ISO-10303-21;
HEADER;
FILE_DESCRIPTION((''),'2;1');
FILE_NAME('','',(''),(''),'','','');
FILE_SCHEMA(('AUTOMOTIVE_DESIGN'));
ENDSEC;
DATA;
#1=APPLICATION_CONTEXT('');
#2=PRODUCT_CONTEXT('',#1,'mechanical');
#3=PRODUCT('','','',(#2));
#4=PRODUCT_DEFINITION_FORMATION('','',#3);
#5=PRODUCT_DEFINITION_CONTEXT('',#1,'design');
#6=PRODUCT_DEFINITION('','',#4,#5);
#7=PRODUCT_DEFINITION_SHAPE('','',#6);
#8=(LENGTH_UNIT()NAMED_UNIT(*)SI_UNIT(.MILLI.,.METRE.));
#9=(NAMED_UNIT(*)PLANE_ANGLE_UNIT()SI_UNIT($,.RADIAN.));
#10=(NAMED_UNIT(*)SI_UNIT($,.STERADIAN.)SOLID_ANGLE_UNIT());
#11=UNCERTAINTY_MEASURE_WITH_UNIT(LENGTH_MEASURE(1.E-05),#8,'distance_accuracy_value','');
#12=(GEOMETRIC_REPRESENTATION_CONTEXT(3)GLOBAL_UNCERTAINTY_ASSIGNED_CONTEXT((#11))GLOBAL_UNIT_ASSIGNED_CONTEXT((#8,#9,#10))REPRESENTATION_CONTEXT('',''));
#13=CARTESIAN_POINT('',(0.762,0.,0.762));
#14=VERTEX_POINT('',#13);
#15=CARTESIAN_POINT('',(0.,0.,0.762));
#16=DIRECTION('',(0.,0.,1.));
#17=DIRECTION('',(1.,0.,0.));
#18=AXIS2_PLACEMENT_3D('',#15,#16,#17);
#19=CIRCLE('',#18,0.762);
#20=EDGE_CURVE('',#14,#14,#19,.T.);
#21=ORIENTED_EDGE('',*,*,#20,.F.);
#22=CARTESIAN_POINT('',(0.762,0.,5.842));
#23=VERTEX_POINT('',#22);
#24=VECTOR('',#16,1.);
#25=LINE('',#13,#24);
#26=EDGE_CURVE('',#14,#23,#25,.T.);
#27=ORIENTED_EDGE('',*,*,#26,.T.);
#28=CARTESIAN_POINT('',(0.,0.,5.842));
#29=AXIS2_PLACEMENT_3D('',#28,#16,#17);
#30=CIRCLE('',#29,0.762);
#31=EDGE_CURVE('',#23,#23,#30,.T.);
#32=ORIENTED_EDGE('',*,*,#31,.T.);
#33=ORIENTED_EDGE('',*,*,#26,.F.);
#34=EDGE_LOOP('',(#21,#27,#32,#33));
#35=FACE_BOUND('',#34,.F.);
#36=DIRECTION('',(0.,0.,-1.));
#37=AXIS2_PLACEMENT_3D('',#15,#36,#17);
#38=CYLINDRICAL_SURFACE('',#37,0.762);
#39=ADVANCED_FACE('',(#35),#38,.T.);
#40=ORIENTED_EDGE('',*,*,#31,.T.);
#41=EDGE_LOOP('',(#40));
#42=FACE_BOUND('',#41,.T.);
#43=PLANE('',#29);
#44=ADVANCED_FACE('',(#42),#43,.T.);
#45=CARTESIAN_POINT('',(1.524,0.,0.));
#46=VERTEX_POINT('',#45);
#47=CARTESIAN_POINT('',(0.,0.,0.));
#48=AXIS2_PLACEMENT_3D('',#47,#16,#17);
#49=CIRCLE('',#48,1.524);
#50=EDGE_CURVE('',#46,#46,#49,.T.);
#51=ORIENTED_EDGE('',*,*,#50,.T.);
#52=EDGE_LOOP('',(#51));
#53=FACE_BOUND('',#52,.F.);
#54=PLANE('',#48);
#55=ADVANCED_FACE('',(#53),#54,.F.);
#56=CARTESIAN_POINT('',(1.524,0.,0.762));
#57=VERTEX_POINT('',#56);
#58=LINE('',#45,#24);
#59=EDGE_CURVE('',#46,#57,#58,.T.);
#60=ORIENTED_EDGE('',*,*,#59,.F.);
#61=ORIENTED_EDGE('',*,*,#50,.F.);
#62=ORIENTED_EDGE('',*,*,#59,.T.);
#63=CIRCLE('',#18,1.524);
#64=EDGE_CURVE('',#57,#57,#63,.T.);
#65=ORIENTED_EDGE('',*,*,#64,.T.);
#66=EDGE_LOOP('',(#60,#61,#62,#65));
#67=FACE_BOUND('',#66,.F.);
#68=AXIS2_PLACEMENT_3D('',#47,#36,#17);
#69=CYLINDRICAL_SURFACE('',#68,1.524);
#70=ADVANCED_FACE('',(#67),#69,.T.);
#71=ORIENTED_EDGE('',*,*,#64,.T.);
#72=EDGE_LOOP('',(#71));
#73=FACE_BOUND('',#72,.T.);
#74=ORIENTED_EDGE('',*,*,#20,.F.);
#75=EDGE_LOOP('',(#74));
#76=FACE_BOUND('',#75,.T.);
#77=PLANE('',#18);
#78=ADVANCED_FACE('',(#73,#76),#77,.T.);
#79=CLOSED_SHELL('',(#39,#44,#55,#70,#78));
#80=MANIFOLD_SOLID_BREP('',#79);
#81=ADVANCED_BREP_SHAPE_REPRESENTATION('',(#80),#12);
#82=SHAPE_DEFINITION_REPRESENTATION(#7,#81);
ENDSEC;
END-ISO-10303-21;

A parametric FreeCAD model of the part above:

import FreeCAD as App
import Part
import Sketcher
Q = App.Units.Quantity

doc = App.newDocument("Part")
body = doc.addObject("PartDesign::Body", "Body")

# Sketch on XY plane
sketch1 = body.newObject("Sketcher::SketchObject", "Sketch")
sketch1.AttachmentSupport = (doc.getObject("XY_Plane"), [""])
sketch1.MapMode = "FlatFace"
sketch1.addGeometry(Part.Circle(App.Vector(0, 0, 0), App.Vector(0, 0, 1), 1.524), False)
sketch1.addConstraint([
    Sketcher.Constraint("Coincident", 0, 3, -1, 1),
    Sketcher.Constraint("Diameter", 0, Q("0.12 in")),
])
pad1 = body.newObject("PartDesign::Pad", "Pad")
pad1.Profile = sketch1
pad1.Length = Q("0.03 in")

# Sketch on XY plane
sketch2 = body.newObject("Sketcher::SketchObject", "Sketch001")
sketch2.AttachmentSupport = (doc.getObject("XY_Plane"), [""])
sketch2.MapMode = "FlatFace"
sketch2.AttachmentOffset = App.Placement(App.Vector(0, 0, 0.03 * 25.4), App.Rotation())
sketch2.addGeometry(Part.Circle(App.Vector(0, 0, 0), App.Vector(0, 0, 1), 0.762), False)
sketch2.addConstraint([
    Sketcher.Constraint("Coincident", 0, 3, -1, 1),
    Sketcher.Constraint("Diameter", 0, Q("0.06 in")),
])
pad2 = body.newObject("PartDesign::Pad", "Pad001")
pad2.Profile = sketch2
pad2.Length = Q("0.2 in")

doc.recompute()
